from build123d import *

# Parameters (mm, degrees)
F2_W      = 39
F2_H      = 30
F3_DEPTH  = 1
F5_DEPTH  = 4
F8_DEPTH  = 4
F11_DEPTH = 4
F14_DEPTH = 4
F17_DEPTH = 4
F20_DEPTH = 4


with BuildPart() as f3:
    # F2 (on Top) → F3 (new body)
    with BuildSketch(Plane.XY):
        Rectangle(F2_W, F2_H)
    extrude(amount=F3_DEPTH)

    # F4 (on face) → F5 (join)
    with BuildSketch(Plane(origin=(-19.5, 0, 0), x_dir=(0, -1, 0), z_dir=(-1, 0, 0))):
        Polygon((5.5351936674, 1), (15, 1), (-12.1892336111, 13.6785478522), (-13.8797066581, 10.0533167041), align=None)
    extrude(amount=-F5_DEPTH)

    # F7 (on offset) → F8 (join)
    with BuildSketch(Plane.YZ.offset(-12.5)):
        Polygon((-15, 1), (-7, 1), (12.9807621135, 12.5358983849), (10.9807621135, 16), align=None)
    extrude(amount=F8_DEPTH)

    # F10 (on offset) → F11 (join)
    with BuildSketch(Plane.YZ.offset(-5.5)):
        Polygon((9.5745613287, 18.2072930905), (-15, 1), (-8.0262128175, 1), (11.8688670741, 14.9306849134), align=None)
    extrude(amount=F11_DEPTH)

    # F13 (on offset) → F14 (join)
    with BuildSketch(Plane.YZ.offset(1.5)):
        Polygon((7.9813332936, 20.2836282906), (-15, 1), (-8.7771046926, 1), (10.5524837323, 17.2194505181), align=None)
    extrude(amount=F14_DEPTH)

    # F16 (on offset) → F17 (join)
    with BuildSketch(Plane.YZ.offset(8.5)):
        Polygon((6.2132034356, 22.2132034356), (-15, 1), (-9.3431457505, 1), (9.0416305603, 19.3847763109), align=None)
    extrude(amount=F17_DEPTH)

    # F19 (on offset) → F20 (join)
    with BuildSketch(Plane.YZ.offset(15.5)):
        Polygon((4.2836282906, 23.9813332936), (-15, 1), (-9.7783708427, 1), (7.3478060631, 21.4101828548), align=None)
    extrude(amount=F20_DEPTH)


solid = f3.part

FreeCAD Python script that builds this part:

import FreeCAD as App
import Part
import Sketcher
Q = App.Units.Quantity

doc = App.newDocument("Part")
body = doc.addObject("PartDesign::Body", "Body")

# Sketch on XY plane
sketch1 = doc.addObject("Sketcher::SketchObject", "Sketch")
body.addObject(sketch1)
sketch1.AttachmentSupport = (doc.XY_Plane, [""])
sketch1.MapMode = "FlatFace"
sketch1.addGeometry(Part.LineSegment(App.Vector(-19.5, 15, 0), App.Vector(-19.5, -15, 0)), False)
sketch1.addGeometry(Part.LineSegment(App.Vector(-19.5, -15, 0), App.Vector(19.5, -15, 0)), False)
sketch1.addGeometry(Part.LineSegment(App.Vector(19.5, -15, 0), App.Vector(19.5, 15, 0)), False)
sketch1.addGeometry(Part.LineSegment(App.Vector(19.5, 15, 0), App.Vector(-19.5, 15, 0)), False)
sketch1.addConstraint(Sketcher.Constraint("Coincident", 0, 2, 1, 1))
sketch1.addConstraint(Sketcher.Constraint("Coincident", 1, 2, 2, 1))
sketch1.addConstraint(Sketcher.Constraint("Coincident", 2, 2, 3, 1))
sketch1.addConstraint(Sketcher.Constraint("Coincident", 3, 2, 0, 1))
sketch1.addConstraint(Sketcher.Constraint("Vertical", 0))
sketch1.addConstraint(Sketcher.Constraint("Horizontal", 1))
sketch1.addConstraint(Sketcher.Constraint("Vertical", 2))
sketch1.addConstraint(Sketcher.Constraint("Horizontal", 3))
sketch1.addConstraint(Sketcher.Constraint("Symmetric", 0, 2, 2, 2, -1, 1))
sketch1.addConstraint(Sketcher.Constraint("DistanceX", 1, 1, 1, 2, Q("39 mm")))
sketch1.addConstraint(Sketcher.Constraint("DistanceY", 0, 2, 0, 1, Q("30 mm")))
pad1 = doc.addObject("PartDesign::Pad", "Pad")
body.addObject(pad1)
pad1.Profile = sketch1
pad1.Length = 1

# Sketch on YZ plane
sketch2 = doc.addObject("Sketcher::SketchObject", "Sketch001")
body.addObject(sketch2)
sketch2.AttachmentSupport = (doc.YZ_Plane, [""])
sketch2.MapMode = "FlatFace"
sketch2.AttachmentOffset = App.Placement(App.Vector(0, 0, -19.5), App.Rotation())
sketch2.addGeometry(Part.LineSegment(App.Vector(-5.535194, 1, 0), App.Vector(-15, 1, 0)), False)
sketch2.addGeometry(Part.LineSegment(App.Vector(-15, 1, 0), App.Vector(12.189234, 13.678548, 0)), False)
sketch2.addGeometry(Part.LineSegment(App.Vector(12.189234, 13.678548, 0), App.Vector(13.879707, 10.053317, 0)), False)
sketch2.addGeometry(Part.LineSegment(App.Vector(13.879707, 10.053317, 0), App.Vector(-5.535194, 1, 0)), False)
sketch2.addConstraint(Sketcher.Constraint("Coincident", 0, 2, 1, 1))
sketch2.addConstraint(Sketcher.Constraint("Coincident", 1, 2, 2, 1))
sketch2.addConstraint(Sketcher.Constraint("Coincident", 2, 2, 3, 1))
sketch2.addConstraint(Sketcher.Constraint("Coincident", 3, 2, 0, 1))
sketch2.addConstraint(Sketcher.Constraint("Horizontal", 0))
sketch2.addConstraint(Sketcher.Constraint("Perpendicular", 1, 2))
sketch2.addConstraint(Sketcher.Constraint("Perpendicular", 2, 3))
sketch2.addConstraint(Sketcher.Constraint("Angle", 1, Q("25 deg")))
sketch2.addConstraint(Sketcher.Constraint("Distance", 1, Q("30 mm")))
sketch2.addConstraint(Sketcher.Constraint("Distance", 2, Q("4 mm")))
sketch2.addConstraint(Sketcher.Constraint("DistanceX", 0, 2, -1, 1, Q("15 mm")))
sketch2.addConstraint(Sketcher.Constraint("DistanceY", -1, 1, 0, 2, Q("1 mm")))
pad2 = doc.addObject("PartDesign::Pad", "Pad001")
body.addObject(pad2)
pad2.Profile = sketch2
pad2.Length = 4

# Sketch on YZ plane
sketch3 = doc.addObject("Sketcher::SketchObject", "Sketch002")
body.addObject(sketch3)
sketch3.AttachmentSupport = (doc.YZ_Plane, [""])
sketch3.MapMode = "FlatFace"
sketch3.AttachmentOffset = App.Placement(App.Vector(0, 0, -12.5), App.Rotation())
sketch3.addGeometry(Part.LineSegment(App.Vector(-15, 1, 0), App.Vector(-7, 1, 0)), False)
sketch3.addGeometry(Part.LineSegment(App.Vector(-7, 1, 0), App.Vector(12.980762, 12.535898, 0)), False)
sketch3.addGeometry(Part.LineSegment(App.Vector(12.980762, 12.535898, 0), App.Vector(10.980762, 16, 0)), False)
sketch3.addGeometry(Part.LineSegment(App.Vector(10.980762, 16, 0), App.Vector(-15, 1, 0)), False)
sketch3.addConstraint(Sketcher.Constraint("Coincident", 0, 2, 1, 1))
sketch3.addConstraint(Sketcher.Constraint("Coincident", 1, 2, 2, 1))
sketch3.addConstraint(Sketcher.Constraint("Coincident", 2, 2, 3, 1))
sketch3.addConstraint(Sketcher.Constraint("Coincident", 3, 2, 0, 1))
sketch3.addConstraint(Sketcher.Constraint("Horizontal", 0))
sketch3.addConstraint(Sketcher.Constraint("Perpendicular", 1, 2))
sketch3.addConstraint(Sketcher.Constraint("Perpendicular", 2, 3))
sketch3.addConstraint(Sketcher.Constraint("DistanceX", 0, 1, 0, 2, Q("8 mm")))
sketch3.addConstraint(Sketcher.Constraint("Angle", 1, Q("30 deg")))
sketch3.addConstraint(Sketcher.Constraint("Distance", 3, Q("30 mm")))
sketch3.addConstraint(Sketcher.Constraint("DistanceX", 0, 2, -1, 1, Q("7 mm")))
sketch3.addConstraint(Sketcher.Constraint("DistanceY", -1, 1, 0, 2, Q("1 mm")))
pad3 = doc.addObject("PartDesign::Pad", "Pad002")
body.addObject(pad3)
pad3.Profile = sketch3
pad3.Length = 4

# Sketch on YZ plane
sketch4 = doc.addObject("Sketcher::SketchObject", "Sketch003")
body.addObject(sketch4)
sketch4.AttachmentSupport = (doc.YZ_Plane, [""])
sketch4.MapMode = "FlatFace"
sketch4.AttachmentOffset = App.Placement(App.Vector(0, 0, -5.5), App.Rotation())
sketch4.addGeometry(Part.LineSegment(App.Vector(9.574561, 18.207293, 0), App.Vector(-15, 1, 0)), False)
sketch4.addGeometry(Part.LineSegment(App.Vector(-15, 1, 0), App.Vector(-8.026213, 1, 0)), False)
sketch4.addGeometry(Part.LineSegment(App.Vector(-8.026213, 1, 0), App.Vector(11.868867, 14.930685, 0)), False)
sketch4.addGeometry(Part.LineSegment(App.Vector(11.868867, 14.930685, 0), App.Vector(9.574561, 18.207293, 0)), False)
sketch4.addConstraint(Sketcher.Constraint("Coincident", 0, 2, 1, 1))
sketch4.addConstraint(Sketcher.Constraint("Coincident", 1, 2, 2, 1))
sketch4.addConstraint(Sketcher.Constraint("Coincident", 2, 2, 3, 1))
sketch4.addConstraint(Sketcher.Constraint("Coincident", 3, 2, 0, 1))
sketch4.addConstraint(Sketcher.Constraint("Horizontal", 1))
sketch4.addConstraint(Sketcher.Constraint("Parallel", 0, 2))
sketch4.addConstraint(Sketcher.Constraint("Perpendicular", 2, 3))
sketch4.addConstraint(Sketcher.Constraint("Angle", 0, Q("-145 deg")))
sketch4.addConstraint(Sketcher.Constraint("Distance", 0, Q("30 mm")))
sketch4.addConstraint(Sketcher.Constraint("Distance", 3, Q("4 mm")))
sketch4.addConstraint(Sketcher.Constraint("DistanceX", 0, 2, -1, 1, Q("15 mm")))
sketch4.addConstraint(Sketcher.Constraint("DistanceY", -1, 1, 0, 2, Q("1 mm")))
pad4 = doc.addObject("PartDesign::Pad", "Pad003")
body.addObject(pad4)
pad4.Profile = sketch4
pad4.Length = 4

# Sketch on YZ plane
sketch5 = doc.addObject("Sketcher::SketchObject", "Sketch004")
body.addObject(sketch5)
sketch5.AttachmentSupport = (doc.YZ_Plane, [""])
sketch5.MapMode = "FlatFace"
sketch5.AttachmentOffset = App.Placement(App.Vector(0, 0, 1.5), App.Rotation())
sketch5.addGeometry(Part.LineSegment(App.Vector(7.981333, 20.283628, 0), App.Vector(-15, 1, 0)), False)
sketch5.addGeometry(Part.LineSegment(App.Vector(-15, 1, 0), App.Vector(-8.777105, 1, 0)), False)
sketch5.addGeometry(Part.LineSegment(App.Vector(-8.777105, 1, 0), App.Vector(10.552484, 17.219451, 0)), False)
sketch5.addGeometry(Part.LineSegment(App.Vector(10.552484, 17.219451, 0), App.Vector(7.981333, 20.283628, 0)), False)
sketch5.addConstraint(Sketcher.Constraint("Coincident", 0, 2, 1, 1))
sketch5.addConstraint(Sketcher.Constraint("Coincident", 1, 2, 2, 1))
sketch5.addConstraint(Sketcher.Constraint("Coincident", 2, 2, 3, 1))
sketch5.addConstraint(Sketcher.Constraint("Coincident", 3, 2, 0, 1))
sketch5.addConstraint(Sketcher.Constraint("Horizontal", 1))
sketch5.addConstraint(Sketcher.Constraint("Parallel", 0, 2))
sketch5.addConstraint(Sketcher.Constraint("Perpendicular", 2, 3))
sketch5.addConstraint(Sketcher.Constraint("Angle", 0, Q("-140 deg")))
sketch5.addConstraint(Sketcher.Constraint("Distance", 0, Q("30 mm")))
sketch5.addConstraint(Sketcher.Constraint("Distance", 3, Q("4 mm")))
sketch5.addConstraint(Sketcher.Constraint("DistanceX", 0, 2, -1, 1, Q("15 mm")))
sketch5.addConstraint(Sketcher.Constraint("DistanceY", -1, 1, 0, 2, Q("1 mm")))
pad5 = doc.addObject("PartDesign::Pad", "Pad004")
body.addObject(pad5)
pad5.Profile = sketch5
pad5.Length = 4

# Sketch on YZ plane
sketch6 = doc.addObject("Sketcher::SketchObject", "Sketch005")
body.addObject(sketch6)
sketch6.AttachmentSupport = (doc.YZ_Plane, [""])
sketch6.MapMode = "FlatFace"
sketch6.AttachmentOffset = App.Placement(App.Vector(0, 0, 8.5), App.Rotation())
sketch6.addGeometry(Part.LineSegment(App.Vector(6.213203, 22.213203, 0), App.Vector(-15, 1, 0)), False)
sketch6.addGeometry(Part.LineSegment(App.Vector(-15, 1, 0), App.Vector(-9.343146, 1, 0)), False)
sketch6.addGeometry(Part.LineSegment(App.Vector(-9.343146, 1, 0), App.Vector(9.041631, 19.384776, 0)), False)
sketch6.addGeometry(Part.LineSegment(App.Vector(9.041631, 19.384776, 0), App.Vector(6.213203, 22.213203, 0)), False)
sketch6.addConstraint(Sketcher.Constraint("Coincident", 0, 2, 1, 1))
sketch6.addConstraint(Sketcher.Constraint("Coincident", 1, 2, 2, 1))
sketch6.addConstraint(Sketcher.Constraint("Coincident", 2, 2, 3, 1))
sketch6.addConstraint(Sketcher.Constraint("Coincident", 3, 2, 0, 1))
sketch6.addConstraint(Sketcher.Constraint("Horizontal", 1))
sketch6.addConstraint(Sketcher.Constraint("Parallel", 0, 2))
sketch6.addConstraint(Sketcher.Constraint("Perpendicular", 2, 3))
sketch6.addConstraint(Sketcher.Constraint("Angle", 0, Q("-135 deg")))
sketch6.addConstraint(Sketcher.Constraint("Distance", 0, Q("30 mm")))
sketch6.addConstraint(Sketcher.Constraint("Distance", 2, Q("26 mm")))
sketch6.addConstraint(Sketcher.Constraint("DistanceX", 0, 2, -1, 1, Q("15 mm")))
sketch6.addConstraint(Sketcher.Constraint("DistanceY", -1, 1, 0, 2, Q("1 mm")))
pad6 = doc.addObject("PartDesign::Pad", "Pad005")
body.addObject(pad6)
pad6.Profile = sketch6
pad6.Length = 4

# Sketch on YZ plane
sketch7 = doc.addObject("Sketcher::SketchObject", "Sketch006")
body.addObject(sketch7)
sketch7.AttachmentSupport = (doc.YZ_Plane, [""])
sketch7.MapMode = "FlatFace"
sketch7.AttachmentOffset = App.Placement(App.Vector(0, 0, 15.5), App.Rotation())
sketch7.addGeometry(Part.LineSegment(App.Vector(4.283628, 23.981333, 0), App.Vector(-15, 1, 0)), False)
sketch7.addGeometry(Part.LineSegment(App.Vector(-15, 1, 0), App.Vector(-9.778371, 1, 0)), False)
sketch7.addGeometry(Part.LineSegment(App.Vector(-9.778371, 1, 0), App.Vector(7.347806, 21.410183, 0)), False)
sketch7.addGeometry(Part.LineSegment(App.Vector(7.347806, 21.410183, 0), App.Vector(4.283628, 23.981333, 0)), False)
sketch7.addConstraint(Sketcher.Constraint("Coincident", 0, 2, 1, 1))
sketch7.addConstraint(Sketcher.Constraint("Coincident", 1, 2, 2, 1))
sketch7.addConstraint(Sketcher.Constraint("Coincident", 2, 2, 3, 1))
sketch7.addConstraint(Sketcher.Constraint("Coincident", 3, 2, 0, 1))
sketch7.addConstraint(Sketcher.Constraint("Horizontal", 1))
sketch7.addConstraint(Sketcher.Constraint("Parallel", 0, 2))
sketch7.addConstraint(Sketcher.Constraint("Perpendicular", 2, 3))
sketch7.addConstraint(Sketcher.Constraint("Angle", 0, Q("-130 deg")))
sketch7.addConstraint(Sketcher.Constraint("Distance", 0, Q("30 mm")))
sketch7.addConstraint(Sketcher.Constraint("Distance", 3, Q("4 mm")))
sketch7.addConstraint(Sketcher.Constraint("DistanceX", 0, 2, -1, 1, Q("15 mm")))
sketch7.addConstraint(Sketcher.Constraint("DistanceY", -1, 1, 0, 2, Q("1 mm")))
pad7 = doc.addObject("PartDesign::Pad", "Pad006")
body.addObject(pad7)
pad7.Profile = sketch7
pad7.Length = 4

doc.recompute()
